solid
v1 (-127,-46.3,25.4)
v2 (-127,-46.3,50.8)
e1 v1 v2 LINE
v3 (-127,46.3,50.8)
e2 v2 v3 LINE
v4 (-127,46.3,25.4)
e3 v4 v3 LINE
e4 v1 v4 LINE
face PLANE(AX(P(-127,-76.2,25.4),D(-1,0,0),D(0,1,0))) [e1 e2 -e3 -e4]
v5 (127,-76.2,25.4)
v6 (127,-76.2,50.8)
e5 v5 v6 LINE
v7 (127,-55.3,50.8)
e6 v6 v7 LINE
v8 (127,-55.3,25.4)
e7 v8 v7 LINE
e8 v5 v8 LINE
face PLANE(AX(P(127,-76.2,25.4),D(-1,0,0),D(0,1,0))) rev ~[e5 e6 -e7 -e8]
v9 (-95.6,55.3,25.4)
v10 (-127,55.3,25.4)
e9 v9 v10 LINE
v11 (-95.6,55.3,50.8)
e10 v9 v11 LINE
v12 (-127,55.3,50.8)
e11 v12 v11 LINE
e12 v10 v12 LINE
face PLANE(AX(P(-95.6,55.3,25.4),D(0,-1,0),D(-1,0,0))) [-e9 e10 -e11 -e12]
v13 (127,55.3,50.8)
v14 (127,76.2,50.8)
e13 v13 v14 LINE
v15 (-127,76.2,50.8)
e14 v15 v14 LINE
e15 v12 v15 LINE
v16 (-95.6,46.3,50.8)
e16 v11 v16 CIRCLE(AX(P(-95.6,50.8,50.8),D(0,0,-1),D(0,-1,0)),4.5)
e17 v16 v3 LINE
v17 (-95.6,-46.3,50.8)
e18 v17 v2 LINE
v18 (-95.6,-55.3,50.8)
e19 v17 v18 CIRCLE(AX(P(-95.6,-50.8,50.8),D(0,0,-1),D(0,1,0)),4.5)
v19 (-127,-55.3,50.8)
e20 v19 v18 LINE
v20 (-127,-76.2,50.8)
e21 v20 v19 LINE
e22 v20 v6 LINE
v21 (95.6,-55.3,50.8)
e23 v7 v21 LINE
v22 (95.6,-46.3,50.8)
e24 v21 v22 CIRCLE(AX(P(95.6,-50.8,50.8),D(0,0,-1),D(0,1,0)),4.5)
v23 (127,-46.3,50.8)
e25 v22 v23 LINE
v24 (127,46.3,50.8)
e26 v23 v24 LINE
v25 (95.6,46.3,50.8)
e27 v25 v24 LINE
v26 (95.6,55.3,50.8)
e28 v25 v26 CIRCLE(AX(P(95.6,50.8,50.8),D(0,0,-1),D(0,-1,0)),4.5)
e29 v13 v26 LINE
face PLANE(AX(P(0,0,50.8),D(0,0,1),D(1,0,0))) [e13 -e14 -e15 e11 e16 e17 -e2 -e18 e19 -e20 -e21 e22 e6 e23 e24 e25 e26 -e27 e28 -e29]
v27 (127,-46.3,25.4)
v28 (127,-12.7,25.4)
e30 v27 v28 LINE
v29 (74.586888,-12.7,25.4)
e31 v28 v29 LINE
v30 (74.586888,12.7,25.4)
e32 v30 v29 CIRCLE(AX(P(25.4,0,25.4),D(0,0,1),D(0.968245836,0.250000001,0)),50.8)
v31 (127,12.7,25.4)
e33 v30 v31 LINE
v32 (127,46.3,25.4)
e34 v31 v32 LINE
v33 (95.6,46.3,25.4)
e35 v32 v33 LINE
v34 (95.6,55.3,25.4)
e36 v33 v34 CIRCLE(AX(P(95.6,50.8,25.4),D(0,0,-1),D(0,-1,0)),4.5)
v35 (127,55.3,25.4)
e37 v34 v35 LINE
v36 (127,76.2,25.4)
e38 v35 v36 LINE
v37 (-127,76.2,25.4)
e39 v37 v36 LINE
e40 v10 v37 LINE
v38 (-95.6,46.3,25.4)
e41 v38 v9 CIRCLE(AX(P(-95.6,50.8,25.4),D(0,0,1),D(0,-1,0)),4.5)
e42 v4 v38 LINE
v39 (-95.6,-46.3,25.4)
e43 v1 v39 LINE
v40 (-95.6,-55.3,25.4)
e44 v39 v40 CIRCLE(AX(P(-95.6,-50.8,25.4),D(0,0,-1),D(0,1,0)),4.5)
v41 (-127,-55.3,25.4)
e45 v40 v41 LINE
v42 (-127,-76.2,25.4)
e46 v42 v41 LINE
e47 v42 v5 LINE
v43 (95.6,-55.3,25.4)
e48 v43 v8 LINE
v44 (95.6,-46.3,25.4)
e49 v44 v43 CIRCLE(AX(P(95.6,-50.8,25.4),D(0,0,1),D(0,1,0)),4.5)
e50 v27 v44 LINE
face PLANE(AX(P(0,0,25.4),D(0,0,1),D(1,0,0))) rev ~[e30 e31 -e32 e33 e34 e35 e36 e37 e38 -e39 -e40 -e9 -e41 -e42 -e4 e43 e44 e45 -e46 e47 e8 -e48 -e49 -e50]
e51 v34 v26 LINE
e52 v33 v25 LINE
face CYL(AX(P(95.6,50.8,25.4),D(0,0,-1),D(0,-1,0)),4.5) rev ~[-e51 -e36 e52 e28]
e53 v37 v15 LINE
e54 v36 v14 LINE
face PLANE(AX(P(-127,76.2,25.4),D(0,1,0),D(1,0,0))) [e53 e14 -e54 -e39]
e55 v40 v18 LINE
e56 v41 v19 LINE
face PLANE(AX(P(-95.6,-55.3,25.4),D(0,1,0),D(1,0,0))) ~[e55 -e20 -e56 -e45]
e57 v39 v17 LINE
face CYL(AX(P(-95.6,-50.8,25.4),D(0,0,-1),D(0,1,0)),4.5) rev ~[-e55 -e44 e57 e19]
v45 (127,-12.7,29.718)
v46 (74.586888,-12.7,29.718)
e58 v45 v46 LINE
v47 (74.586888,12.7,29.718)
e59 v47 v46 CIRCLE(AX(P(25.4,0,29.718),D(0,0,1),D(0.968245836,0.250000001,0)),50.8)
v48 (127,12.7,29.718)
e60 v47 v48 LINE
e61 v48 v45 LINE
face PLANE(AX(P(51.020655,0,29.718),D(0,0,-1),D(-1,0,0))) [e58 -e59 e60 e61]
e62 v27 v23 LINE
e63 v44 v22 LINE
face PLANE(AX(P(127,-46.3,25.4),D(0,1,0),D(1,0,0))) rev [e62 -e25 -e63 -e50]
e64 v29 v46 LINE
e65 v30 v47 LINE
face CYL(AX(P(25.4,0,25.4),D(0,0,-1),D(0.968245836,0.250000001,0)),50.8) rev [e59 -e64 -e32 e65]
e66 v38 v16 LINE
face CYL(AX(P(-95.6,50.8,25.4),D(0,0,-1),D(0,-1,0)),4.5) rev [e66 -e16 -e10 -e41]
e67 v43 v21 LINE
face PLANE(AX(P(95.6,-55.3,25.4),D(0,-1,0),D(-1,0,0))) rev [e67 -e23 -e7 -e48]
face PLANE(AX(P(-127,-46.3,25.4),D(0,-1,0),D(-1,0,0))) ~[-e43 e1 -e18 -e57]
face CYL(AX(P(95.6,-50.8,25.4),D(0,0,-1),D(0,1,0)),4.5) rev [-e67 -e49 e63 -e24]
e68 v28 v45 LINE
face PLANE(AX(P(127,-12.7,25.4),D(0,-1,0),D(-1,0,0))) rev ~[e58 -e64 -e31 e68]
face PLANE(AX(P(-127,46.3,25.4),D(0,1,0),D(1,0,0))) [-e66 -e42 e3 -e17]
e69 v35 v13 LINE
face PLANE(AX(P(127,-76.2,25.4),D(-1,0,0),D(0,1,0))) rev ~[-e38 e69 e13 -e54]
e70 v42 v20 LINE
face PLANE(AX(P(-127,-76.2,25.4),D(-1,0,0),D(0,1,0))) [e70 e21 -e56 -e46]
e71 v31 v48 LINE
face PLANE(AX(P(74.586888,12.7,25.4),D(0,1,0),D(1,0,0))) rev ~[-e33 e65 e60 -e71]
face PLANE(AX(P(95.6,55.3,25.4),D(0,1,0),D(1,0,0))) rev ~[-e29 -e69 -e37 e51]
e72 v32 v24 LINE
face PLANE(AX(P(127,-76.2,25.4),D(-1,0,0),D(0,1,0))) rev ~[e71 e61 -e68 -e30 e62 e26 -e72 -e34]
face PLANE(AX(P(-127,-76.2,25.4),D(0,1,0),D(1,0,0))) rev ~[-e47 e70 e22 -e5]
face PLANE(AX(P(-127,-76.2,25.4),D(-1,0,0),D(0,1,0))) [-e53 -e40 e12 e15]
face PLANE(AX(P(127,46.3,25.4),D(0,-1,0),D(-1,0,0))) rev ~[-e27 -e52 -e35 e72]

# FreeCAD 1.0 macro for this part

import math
import FreeCAD as App
import Part
import Sketcher
from FreeCAD import Vector
Q = App.Units.Quantity


def add_polygon(sketch, points):
    """Adds a closed chain of lines whose ends are joined by coincident constraints."""
    first, n = sketch.GeometryCount, len(points)
    for a, b in zip(points, points[1:] + points[:1]):
        sketch.addGeometry(Part.LineSegment(App.Vector(*a, 0), App.Vector(*b, 0)), False)
    for i in range(n):
        sketch.addConstraint(Sketcher.Constraint("Coincident", first + i, 2, first + (i + 1) % n, 1))

doc = App.newDocument("Part")
body = doc.addObject("PartDesign::Body", "Body")

sketch1 = body.newObject("Sketcher::SketchObject", "Sketch")
sketch1.AttachmentSupport = (doc.getObject("XY_Plane"), [""])
sketch1.MapMode = "FlatFace"
sketch1.AttachmentOffset = App.Placement(Vector(0, 0, 1 * 25.4), App.Rotation())
add_polygon(sketch1, [(-127, 76), (-127, -76), (127, -76), (127, 76)])
sketch1.addConstraint(Sketcher.Constraint("Vertical", 0))
sketch1.addConstraint(Sketcher.Constraint("Horizontal", 1))
sketch1.addConstraint(Sketcher.Constraint("Vertical", 2))
sketch1.addConstraint(Sketcher.Constraint("Horizontal", 3))
sketch1.addConstraint(Sketcher.Constraint("Symmetric", 0, 2, 2, 2, -1, 1))
sketch1.addConstraint(Sketcher.Constraint("DistanceX", 1, 1, 1, 2, Q("10 in")))
sketch1.addConstraint(Sketcher.Constraint("DistanceY", 0, 2, 0, 1, Q("6 in")))
pad1 = body.newObject("PartDesign::Pad", "Pad")
pad1.Profile = sketch1
pad1.Length = Q("1 in")

sketch2 = body.newObject("Sketcher::SketchObject", "Sketch001")
sketch2.AttachmentSupport = (doc.getObject("XY_Plane"), [""])
sketch2.MapMode = "FlatFace"
sketch2.AttachmentOffset = App.Placement(Vector(0, 0, 1 * 25.4), App.Rotation())
sketch2.addGeometry(Part.ArcOfCircle(Part.Circle(Vector(-95.6, 50.8, 0), Vector(0, 0, 1), 4.5), math.radians(-90), math.radians(90)), False)
sketch2.addGeometry(Part.LineSegment(Vector(-95.6, 55.3, 0), Vector(-127, 55.3, 0)), False)
sketch2.addGeometry(Part.LineSegment(Vector(-127, 55.3, 0), Vector(-127, 46.3, 0)), False)
sketch2.addGeometry(Part.LineSegment(Vector(-127, 46.3, 0), Vector(-95.6, 46.3, 0)), False)
sketch2.addConstraint(Sketcher.Constraint("Tangent", 0, 2, 1, 1))
sketch2.addConstraint(Sketcher.Constraint("Coincident", 1, 2, 2, 1))
sketch2.addConstraint(Sketcher.Constraint("Coincident", 2, 2, 3, 1))
sketch2.addConstraint(Sketcher.Constraint("Tangent", 3, 2, 0, 1))
sketch2.addConstraint(Sketcher.Constraint("Horizontal", 1))
sketch2.addConstraint(Sketcher.Constraint("Vertical", 2))
sketch2.addConstraint(Sketcher.Constraint("Horizontal", 3))
sketch2.addConstraint(Sketcher.Constraint("DistanceY", -1, 1, 0, 3, Q("2 in")))
sketch2.addConstraint(Sketcher.Constraint("DistanceX", 1, 2, -1, 1, Q("5 in")))
sketch2.addConstraint(Sketcher.Constraint("Radius", 0, Q("4.5 mm")))
sketch2.addConstraint(Sketcher.Constraint("DistanceX", 1, 2, 1, 1, Q("31.4 mm")))
pocket1 = body.newObject("PartDesign::Pocket", "Pocket")
pocket1.Profile = sketch2
pocket1.Type = "ThroughAll"
pocket1.Reversed = True

sketch3 = body.newObject("Sketcher::SketchObject", "Sketch002")
sketch3.AttachmentSupport = (doc.getObject("XY_Plane"), [""])
sketch3.MapMode = "FlatFace"
sketch3.AttachmentOffset = App.Placement(Vector(0, 0, 1 * 25.4), App.Rotation())
sketch3.addGeometry(Part.LineSegment(Vector(75, -13, 0), Vector(127, -13, 0)), False)
sketch3.addGeometry(Part.LineSegment(Vector(127, -13, 0), Vector(127, 13, 0)), False)
sketch3.addGeometry(Part.LineSegment(Vector(127, 13, 0), Vector(75, 13, 0)), False)
sketch3.addGeometry(Part.ArcOfCircle(Part.Circle(Vector(25, 0, 0), Vector(0, 0, 1), 51), math.radians(14), math.radians(346)), False)
sketch3.addConstraint(Sketcher.Constraint("Coincident", 0, 2, 1, 1))
sketch3.addConstraint(Sketcher.Constraint("Coincident", 1, 2, 2, 1))
sketch3.addConstraint(Sketcher.Constraint("Coincident", 2, 2, 3, 1))
sketch3.addConstraint(Sketcher.Constraint("Coincident", 3, 2, 0, 1))
sketch3.addConstraint(Sketcher.Constraint("Horizontal", 0))
sketch3.addConstraint(Sketcher.Constraint("Vertical", 1))
sketch3.addConstraint(Sketcher.Constraint("Horizontal", 2))
sketch3.addConstraint(Sketcher.Constraint("Symmetric", 2, 2, 3, 2, -1))
sketch3.addConstraint(Sketcher.Constraint("Radius", 3, Q("2 in")))
sketch3.addConstraint(Sketcher.Constraint("DistanceY", 1, 1, 1, 2, Q("1 in")))
sketch3.addConstraint(Sketcher.Constraint("DistanceX", -1, 1, 3, 3, Q("1 in")))
sketch3.addConstraint(Sketcher.Constraint("DistanceX", -1, 1, 0, 2, Q("5 in")))
pocket2 = body.newObject("PartDesign::Pocket", "Pocket001")
pocket2.Profile = sketch3
pocket2.Length = Q("0.17 in")
pocket2.Reversed = True

sketch4 = body.newObject("Sketcher::SketchObject", "Sketch003")
sketch4.AttachmentSupport = (doc.getObject("XY_Plane"), [""])
sketch4.MapMode = "FlatFace"
sketch4.AttachmentOffset = App.Placement(Vector(0, 0, 1 * 25.4), App.Rotation())
sketch4.addGeometry(Part.ArcOfCircle(Part.Circle(Vector(95.6, 50.8, 0), Vector(0, 0, 1), 4.5), math.radians(90), math.radians(270)), False)
sketch4.addGeometry(Part.LineSegment(Vector(95.6, 55.3, 0), Vector(127, 55.3, 0)), False)
sketch4.addGeometry(Part.LineSegment(Vector(127, 55.3, 0), Vector(127, 46.3, 0)), False)
sketch4.addGeometry(Part.LineSegment(Vector(127, 46.3, 0), Vector(95.6, 46.3, 0)), False)
sketch4.addConstraint(Sketcher.Constraint("Tangent", 0, 1, 1, 1))
sketch4.addConstraint(Sketcher.Constraint("Coincident", 1, 2, 2, 1))
sketch4.addConstraint(Sketcher.Constraint("Coincident", 2, 2, 3, 1))
sketch4.addConstraint(Sketcher.Constraint("Tangent", 3, 2, 0, 2))
sketch4.addConstraint(Sketcher.Constraint("Horizontal", 1))
sketch4.addConstraint(Sketcher.Constraint("Vertical", 2))
sketch4.addConstraint(Sketcher.Constraint("Horizontal", 3))
sketch4.addConstraint(Sketcher.Constraint("DistanceY", -1, 1, 0, 3, Q("2 in")))
sketch4.addConstraint(Sketcher.Constraint("DistanceX", -1, 1, 1, 2, Q("5 in")))
sketch4.addConstraint(Sketcher.Constraint("Radius", 0, Q("4.5 mm")))
sketch4.addConstraint(Sketcher.Constraint("DistanceX", 1, 1, 1, 2, Q("31.4 mm")))
pocket3 = body.newObject("PartDesign::Pocket", "Pocket002")
pocket3.Profile = sketch4
pocket3.Type = "ThroughAll"
pocket3.Reversed = True
doc.recompute()

mirrored = body.newObject("PartDesign::Mirrored", "Mirrored")
mirrored.Originals = [pocket1, pocket3]
mirrored.MirrorPlane = (doc.getObject("XZ_Plane"), [""])
body.Tip = mirrored

doc.recompute()
